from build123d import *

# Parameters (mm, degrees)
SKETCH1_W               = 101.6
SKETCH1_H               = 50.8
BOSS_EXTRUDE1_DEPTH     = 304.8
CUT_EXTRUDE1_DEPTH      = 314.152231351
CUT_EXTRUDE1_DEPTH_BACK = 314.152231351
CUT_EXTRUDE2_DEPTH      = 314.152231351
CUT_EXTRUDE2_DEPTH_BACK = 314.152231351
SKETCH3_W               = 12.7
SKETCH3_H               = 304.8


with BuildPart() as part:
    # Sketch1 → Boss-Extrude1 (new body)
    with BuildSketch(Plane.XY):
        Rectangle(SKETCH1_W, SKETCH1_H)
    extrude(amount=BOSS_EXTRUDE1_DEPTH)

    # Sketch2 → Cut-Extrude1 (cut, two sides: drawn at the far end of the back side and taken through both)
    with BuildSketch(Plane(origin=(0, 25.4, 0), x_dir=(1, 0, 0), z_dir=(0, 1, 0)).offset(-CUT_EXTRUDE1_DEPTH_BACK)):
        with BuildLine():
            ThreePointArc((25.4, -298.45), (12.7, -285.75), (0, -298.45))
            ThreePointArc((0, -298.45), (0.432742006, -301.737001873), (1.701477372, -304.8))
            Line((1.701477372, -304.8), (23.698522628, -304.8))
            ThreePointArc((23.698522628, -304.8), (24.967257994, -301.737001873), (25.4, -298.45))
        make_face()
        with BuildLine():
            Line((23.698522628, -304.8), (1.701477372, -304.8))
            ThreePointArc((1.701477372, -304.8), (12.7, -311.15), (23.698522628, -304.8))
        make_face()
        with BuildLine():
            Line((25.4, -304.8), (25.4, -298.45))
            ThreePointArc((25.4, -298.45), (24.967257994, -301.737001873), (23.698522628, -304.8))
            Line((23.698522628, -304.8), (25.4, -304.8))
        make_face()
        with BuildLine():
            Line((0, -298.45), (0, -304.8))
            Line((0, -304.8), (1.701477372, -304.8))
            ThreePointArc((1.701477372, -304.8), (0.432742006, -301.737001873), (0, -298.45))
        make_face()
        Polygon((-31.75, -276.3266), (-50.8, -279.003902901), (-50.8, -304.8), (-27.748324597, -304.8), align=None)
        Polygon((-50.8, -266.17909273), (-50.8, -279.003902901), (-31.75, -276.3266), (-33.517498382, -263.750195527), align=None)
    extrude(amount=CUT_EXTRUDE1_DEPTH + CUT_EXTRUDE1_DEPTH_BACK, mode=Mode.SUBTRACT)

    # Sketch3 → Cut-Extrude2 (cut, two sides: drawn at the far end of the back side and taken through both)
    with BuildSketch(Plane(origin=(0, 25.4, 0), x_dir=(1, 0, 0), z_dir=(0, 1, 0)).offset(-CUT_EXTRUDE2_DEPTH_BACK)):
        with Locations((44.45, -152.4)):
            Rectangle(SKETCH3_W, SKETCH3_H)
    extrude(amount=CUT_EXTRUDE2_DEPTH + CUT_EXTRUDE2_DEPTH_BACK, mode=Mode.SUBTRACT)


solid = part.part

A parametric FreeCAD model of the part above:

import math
import FreeCAD as App
import Part
import Sketcher
Q = App.Units.Quantity

doc = App.newDocument("Part")
body = doc.addObject("PartDesign::Body", "Body")

sketch1 = body.newObject("Sketcher::SketchObject", "Sketch")
sketch1.AttachmentSupport = (doc.getObject("XY_Plane"), [""])
sketch1.MapMode = "FlatFace"
sketch1.addGeometry(Part.LineSegment(App.Vector(-51, 25, 0), App.Vector(-51, -25, 0)), False)
sketch1.addGeometry(Part.LineSegment(App.Vector(-51, -25, 0), App.Vector(51, -25, 0)), False)
sketch1.addGeometry(Part.LineSegment(App.Vector(51, -25, 0), App.Vector(51, 25, 0)), False)
sketch1.addGeometry(Part.LineSegment(App.Vector(51, 25, 0), App.Vector(-51, 25, 0)), False)
sketch1.addConstraint(Sketcher.Constraint("Coincident", 0, 2, 1, 1))
sketch1.addConstraint(Sketcher.Constraint("Coincident", 1, 2, 2, 1))
sketch1.addConstraint(Sketcher.Constraint("Coincident", 2, 2, 3, 1))
sketch1.addConstraint(Sketcher.Constraint("Coincident", 3, 2, 0, 1))
sketch1.addConstraint(Sketcher.Constraint("Vertical", 0))
sketch1.addConstraint(Sketcher.Constraint("Horizontal", 1))
sketch1.addConstraint(Sketcher.Constraint("Vertical", 2))
sketch1.addConstraint(Sketcher.Constraint("Horizontal", 3))
sketch1.addConstraint(Sketcher.Constraint("Symmetric", 0, 2, 2, 2, -1, 1))
sketch1.addConstraint(Sketcher.Constraint("DistanceX", 1, 1, 1, 2, Q("4 in")))
sketch1.addConstraint(Sketcher.Constraint("DistanceY", 0, 2, 0, 1, Q("2 in")))
pad1 = body.newObject("PartDesign::Pad", "Pad")
pad1.Profile = sketch1
pad1.Length = Q("12 in")

sketch2 = body.newObject("Sketcher::SketchObject", "Sketch001")
sketch2.AttachmentSupport = (doc.getObject("XZ_Plane"), [""])
sketch2.MapMode = "FlatFace"
sketch2.AttachmentOffset = App.Placement(App.Vector(0, 0, -1 * 25.4), App.Rotation())
sketch2.addGeometry(Part.ArcOfCircle(Part.Circle(App.Vector(12.7, 298.4, 0), App.Vector(0, 0, 1), 12.7), math.radians(180), math.radians(360)), False)
sketch2.addGeometry(Part.LineSegment(App.Vector(0, 298.4, 0), App.Vector(0, 304.8, 0)), False)
sketch2.addGeometry(Part.LineSegment(App.Vector(0, 304.8, 0), App.Vector(1.7, 304.8, 0)), False)
sketch2.addGeometry(Part.ArcOfCircle(Part.Circle(App.Vector(12.7, 298.4, 0), App.Vector(0, 0, 1), 12.7), math.radians(30), math.radians(150)), False)
sketch2.addGeometry(Part.LineSegment(App.Vector(23.7, 304.8, 0), App.Vector(25.4, 304.8, 0)), False)
sketch2.addGeometry(Part.LineSegment(App.Vector(25.4, 304.8, 0), App.Vector(25.4, 298.4, 0)), False)
sketch2.addGeometry(Part.LineSegment(App.Vector(-50.8, 304.8, 0), App.Vector(-27.7, 304.8, 0)), False)
sketch2.addGeometry(Part.LineSegment(App.Vector(-27.7, 304.8, 0), App.Vector(-31.8, 276.3, 0)), False)
sketch2.addGeometry(Part.LineSegment(App.Vector(-31.8, 276.3, 0), App.Vector(-33.5, 263.8, 0)), False)
sketch2.addGeometry(Part.LineSegment(App.Vector(-33.5, 263.8, 0), App.Vector(-50.8, 266.2, 0)), False)
sketch2.addGeometry(Part.LineSegment(App.Vector(-50.8, 266.2, 0), App.Vector(-50.8, 304.8, 0)), False)
sketch2.addConstraint(Sketcher.Constraint("Tangent", 0, 1, 1, 1))
sketch2.addConstraint(Sketcher.Constraint("Coincident", 1, 2, 2, 1))
sketch2.addConstraint(Sketcher.Constraint("Coincident", 2, 2, 3, 2))
sketch2.addConstraint(Sketcher.Constraint("Coincident", 3, 1, 4, 1))
sketch2.addConstraint(Sketcher.Constraint("Coincident", 4, 2, 5, 1))
sketch2.addConstraint(Sketcher.Constraint("Tangent", 5, 2, 0, 2))
sketch2.addConstraint(Sketcher.Constraint("Coincident", 6, 2, 7, 1))
sketch2.addConstraint(Sketcher.Constraint("Coincident", 7, 2, 8, 1))
sketch2.addConstraint(Sketcher.Constraint("Coincident", 8, 2, 9, 1))
sketch2.addConstraint(Sketcher.Constraint("Coincident", 9, 2, 10, 1))
sketch2.addConstraint(Sketcher.Constraint("Coincident", 10, 2, 6, 1))
sketch2.addConstraint(Sketcher.Constraint("Vertical", 1))
sketch2.addConstraint(Sketcher.Constraint("Horizontal", 2))
sketch2.addConstraint(Sketcher.Constraint("Horizontal", 4))
sketch2.addConstraint(Sketcher.Constraint("Vertical", 5))
sketch2.addConstraint(Sketcher.Constraint("Horizontal", 6))
sketch2.addConstraint(Sketcher.Constraint("Vertical", 10))
sketch2.addConstraint(Sketcher.Constraint("Coincident", 3, 3, 0, 3))
sketch2.addConstraint(Sketcher.Constraint("Equal", 0, 3))
sketch2.addConstraint(Sketcher.Constraint("PointOnObject", 0, 1, -2))
sketch2.addConstraint(Sketcher.Constraint("Parallel", 7, 8))
sketch2.addConstraint(Sketcher.Constraint("Perpendicular", 8, 9))
sketch2.addConstraint(Sketcher.Constraint("Horizontal", 2, 2, 3, 1))
sketch2.addConstraint(Sketcher.Constraint("Horizontal", 4, 2, 6, 2))
sketch2.addConstraint(Sketcher.Constraint("Radius", 0, Q("0.5 in")))
sketch2.addConstraint(Sketcher.Constraint("DistanceY", -1, 1, 1, 2, Q("12 in")))
sketch2.addConstraint(Sketcher.Constraint("DistanceX", 9, 2, -1, 1, Q("2 in")))
sketch2.addConstraint(Sketcher.Constraint("Angle", 7, Q("-98 deg")))
sketch2.addConstraint(Sketcher.Constraint("Distance", 8, Q("0.5 in")))
sketch2.addConstraint(Sketcher.Constraint("DistanceY", 1, 1, 1, 2, Q("0.25 in")))
sketch2.addConstraint(Sketcher.Constraint("DistanceX", 7, 2, -1, 1, Q("1.25 in")))
sketch2.addConstraint(Sketcher.Constraint("DistanceY", -1, 1, 7, 2, Q("10.879 in")))
pocket1 = body.newObject("PartDesign::Pocket", "Pocket")
pocket1.Profile = sketch2
pocket1.Type = "ThroughAll"
pocket1.Midplane = True

sketch3 = body.newObject("Sketcher::SketchObject", "Sketch002")
sketch3.AttachmentSupport = (doc.getObject("XZ_Plane"), [""])
sketch3.MapMode = "FlatFace"
sketch3.AttachmentOffset = App.Placement(App.Vector(0, 0, -1 * 25.4), App.Rotation())
sketch3.addGeometry(Part.LineSegment(App.Vector(38, 0, 0), App.Vector(38, 305, 0)), False)
sketch3.addGeometry(Part.LineSegment(App.Vector(38, 305, 0), App.Vector(51, 305, 0)), False)
sketch3.addGeometry(Part.LineSegment(App.Vector(51, 305, 0), App.Vector(51, 0, 0)), False)
sketch3.addGeometry(Part.LineSegment(App.Vector(51, 0, 0), App.Vector(38, 0, 0)), False)
sketch3.addConstraint(Sketcher.Constraint("Coincident", 0, 2, 1, 1))
sketch3.addConstraint(Sketcher.Constraint("Coincident", 1, 2, 2, 1))
sketch3.addConstraint(Sketcher.Constraint("Coincident", 2, 2, 3, 1))
sketch3.addConstraint(Sketcher.Constraint("Coincident", 3, 2, 0, 1))
sketch3.addConstraint(Sketcher.Constraint("Vertical", 0))
sketch3.addConstraint(Sketcher.Constraint("Horizontal", 1))
sketch3.addConstraint(Sketcher.Constraint("Vertical", 2))
sketch3.addConstraint(Sketcher.Constraint("Horizontal", 3))
sketch3.addConstraint(Sketcher.Constraint("PointOnObject", 2, 2, -1))
sketch3.addConstraint(Sketcher.Constraint("DistanceY", 0, 1, 0, 2, Q("12 in")))
sketch3.addConstraint(Sketcher.Constraint("DistanceX", 1, 1, 1, 2, Q("0.5 in")))
sketch3.addConstraint(Sketcher.Constraint("DistanceX", -1, 1, 1, 2, Q("2 in")))
pocket2 = body.newObject("PartDesign::Pocket", "Pocket001")
pocket2.Profile = sketch3
pocket2.Type = "ThroughAll"
pocket2.Midplane = True

doc.recompute()
